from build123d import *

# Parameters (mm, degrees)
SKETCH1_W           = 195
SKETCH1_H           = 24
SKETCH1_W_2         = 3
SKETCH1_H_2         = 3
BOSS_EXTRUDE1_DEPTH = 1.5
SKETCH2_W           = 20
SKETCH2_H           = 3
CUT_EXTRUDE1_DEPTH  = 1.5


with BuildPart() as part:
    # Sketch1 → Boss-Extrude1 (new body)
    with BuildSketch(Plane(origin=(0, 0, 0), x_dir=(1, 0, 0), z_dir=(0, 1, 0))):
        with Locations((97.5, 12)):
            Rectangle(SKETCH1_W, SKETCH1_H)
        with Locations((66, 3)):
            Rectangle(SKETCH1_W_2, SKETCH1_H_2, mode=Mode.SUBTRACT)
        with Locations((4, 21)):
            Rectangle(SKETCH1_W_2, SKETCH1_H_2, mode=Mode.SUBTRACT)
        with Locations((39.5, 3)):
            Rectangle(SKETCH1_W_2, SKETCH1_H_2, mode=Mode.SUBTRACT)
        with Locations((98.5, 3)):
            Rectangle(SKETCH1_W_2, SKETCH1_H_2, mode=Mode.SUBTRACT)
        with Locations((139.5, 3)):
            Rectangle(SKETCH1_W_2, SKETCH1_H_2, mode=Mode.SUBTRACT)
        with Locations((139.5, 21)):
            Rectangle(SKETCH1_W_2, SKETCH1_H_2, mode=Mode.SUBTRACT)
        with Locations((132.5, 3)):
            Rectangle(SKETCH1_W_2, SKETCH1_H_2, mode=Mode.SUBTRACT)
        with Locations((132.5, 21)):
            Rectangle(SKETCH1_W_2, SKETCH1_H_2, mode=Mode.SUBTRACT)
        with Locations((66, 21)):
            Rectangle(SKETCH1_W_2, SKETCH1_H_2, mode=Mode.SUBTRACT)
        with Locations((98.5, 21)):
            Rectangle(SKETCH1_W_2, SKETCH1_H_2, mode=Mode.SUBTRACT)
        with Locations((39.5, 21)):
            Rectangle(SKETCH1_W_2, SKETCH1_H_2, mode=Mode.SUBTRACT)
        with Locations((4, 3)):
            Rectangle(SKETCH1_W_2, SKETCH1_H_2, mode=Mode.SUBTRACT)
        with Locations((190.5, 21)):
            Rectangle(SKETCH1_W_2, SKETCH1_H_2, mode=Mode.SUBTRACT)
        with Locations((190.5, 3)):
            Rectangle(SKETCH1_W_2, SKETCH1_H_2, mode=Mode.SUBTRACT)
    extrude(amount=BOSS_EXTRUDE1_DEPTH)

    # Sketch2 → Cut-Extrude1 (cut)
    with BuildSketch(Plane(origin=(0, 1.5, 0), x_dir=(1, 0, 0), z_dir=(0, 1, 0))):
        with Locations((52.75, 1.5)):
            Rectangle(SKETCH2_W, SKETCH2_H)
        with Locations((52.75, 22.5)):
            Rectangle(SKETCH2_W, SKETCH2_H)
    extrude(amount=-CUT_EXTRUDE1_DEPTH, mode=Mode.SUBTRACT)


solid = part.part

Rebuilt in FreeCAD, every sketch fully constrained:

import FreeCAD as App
import Part
import Sketcher

doc = App.newDocument("Part")
params = doc.addObject("Spreadsheet::Sheet", "Params")
for row, (alias, value) in enumerate([
    ("sketch1_width", "195 mm"),
    ("sketch1_width2", "3 mm"),
    ("sketch1_height", "24 mm"),
    ("pad1_length", "1.5 mm"),
    ("sketch2_width", "20 mm"),
    ("sketch2_height", "3 mm"),
    ("pocket1_length", "1.5 mm"),
], start=1):
    params.set(f"A{row}", alias)
    params.set(f"B{row}", "=" + value)
    params.setAlias(f"B{row}", alias)

body = doc.addObject("PartDesign::Body", "Body")

# Sketch on XZ plane
sketch1 = body.newObject("Sketcher::SketchObject", "Sketch")
sketch1.AttachmentSupport = (doc.getObject("XZ_Plane"), [""])
sketch1.MapMode = "FlatFace"
sketch1.addGeometry(Part.LineSegment(App.Vector(0, -24, 0), App.Vector(0, 0, 0)), False)
sketch1.addGeometry(Part.LineSegment(App.Vector(0, 0, 0), App.Vector(195, 0, 0)), False)
sketch1.addGeometry(Part.LineSegment(App.Vector(195, 0, 0), App.Vector(195, -24, 0)), False)
sketch1.addGeometry(Part.LineSegment(App.Vector(195, -24, 0), App.Vector(0, -24, 0)), False)
sketch1.addGeometry(Part.LineSegment(App.Vector(5.5, -1.5, 0), App.Vector(2.5, -1.5, 0)), False)
sketch1.addGeometry(Part.LineSegment(App.Vector(2.5, -1.5, 0), App.Vector(2.5, -4.5, 0)), False)
sketch1.addGeometry(Part.LineSegment(App.Vector(2.5, -4.5, 0), App.Vector(5.5, -4.5, 0)), False)
sketch1.addGeometry(Part.LineSegment(App.Vector(5.5, -4.5, 0), App.Vector(5.5, -1.5, 0)), False)
sketch1.addGeometry(Part.LineSegment(App.Vector(41, -1.5, 0), App.Vector(38, -1.5, 0)), False)
sketch1.addGeometry(Part.LineSegment(App.Vector(38, -1.5, 0), App.Vector(38, -4.5, 0)), False)
sketch1.addGeometry(Part.LineSegment(App.Vector(38, -4.5, 0), App.Vector(41, -4.5, 0)), False)
sketch1.addGeometry(Part.LineSegment(App.Vector(41, -4.5, 0), App.Vector(41, -1.5, 0)), False)
sketch1.addGeometry(Part.LineSegment(App.Vector(67.5, -1.5, 0), App.Vector(64.5, -1.5, 0)), False)
sketch1.addGeometry(Part.LineSegment(App.Vector(64.5, -1.5, 0), App.Vector(64.5, -4.5, 0)), False)
sketch1.addGeometry(Part.LineSegment(App.Vector(64.5, -4.5, 0), App.Vector(67.5, -4.5, 0)), False)
sketch1.addGeometry(Part.LineSegment(App.Vector(67.5, -4.5, 0), App.Vector(67.5, -1.5, 0)), False)
sketch1.addGeometry(Part.LineSegment(App.Vector(100, -1.5, 0), App.Vector(97, -1.5, 0)), False)
sketch1.addGeometry(Part.LineSegment(App.Vector(97, -1.5, 0), App.Vector(97, -4.5, 0)), False)
sketch1.addGeometry(Part.LineSegment(App.Vector(97, -4.5, 0), App.Vector(100, -4.5, 0)), False)
sketch1.addGeometry(Part.LineSegment(App.Vector(100, -4.5, 0), App.Vector(100, -1.5, 0)), False)
sketch1.addGeometry(Part.LineSegment(App.Vector(134, -1.5, 0), App.Vector(131, -1.5, 0)), False)
sketch1.addGeometry(Part.LineSegment(App.Vector(131, -1.5, 0), App.Vector(131, -4.5, 0)), False)
sketch1.addGeometry(Part.LineSegment(App.Vector(131, -4.5, 0), App.Vector(134, -4.5, 0)), False)
sketch1.addGeometry(Part.LineSegment(App.Vector(134, -4.5, 0), App.Vector(134, -1.5, 0)), False)
sketch1.addGeometry(Part.LineSegment(App.Vector(141, -1.5, 0), App.Vector(138, -1.5, 0)), False)
sketch1.addGeometry(Part.LineSegment(App.Vector(138, -1.5, 0), App.Vector(138, -4.5, 0)), False)
sketch1.addGeometry(Part.LineSegment(App.Vector(138, -4.5, 0), App.Vector(141, -4.5, 0)), False)
sketch1.addGeometry(Part.LineSegment(App.Vector(141, -4.5, 0), App.Vector(141, -1.5, 0)), False)
sketch1.addGeometry(Part.LineSegment(App.Vector(192, -1.5, 0), App.Vector(189, -1.5, 0)), False)
sketch1.addGeometry(Part.LineSegment(App.Vector(189, -1.5, 0), App.Vector(189, -4.5, 0)), False)
sketch1.addGeometry(Part.LineSegment(App.Vector(189, -4.5, 0), App.Vector(192, -4.5, 0)), False)
sketch1.addGeometry(Part.LineSegment(App.Vector(192, -4.5, 0), App.Vector(192, -1.5, 0)), False)
sketch1.addGeometry(Part.LineSegment(App.Vector(5.5, -19.5, 0), App.Vector(2.5, -19.5, 0)), False)
sketch1.addGeometry(Part.LineSegment(App.Vector(2.5, -19.5, 0), App.Vector(2.5, -22.5, 0)), False)
sketch1.addGeometry(Part.LineSegment(App.Vector(2.5, -22.5, 0), App.Vector(5.5, -22.5, 0)), False)
sketch1.addGeometry(Part.LineSegment(App.Vector(5.5, -22.5, 0), App.Vector(5.5, -19.5, 0)), False)
sketch1.addGeometry(Part.LineSegment(App.Vector(41, -19.5, 0), App.Vector(38, -19.5, 0)), False)
sketch1.addGeometry(Part.LineSegment(App.Vector(38, -19.5, 0), App.Vector(38, -22.5, 0)), False)
sketch1.addGeometry(Part.LineSegment(App.Vector(38, -22.5, 0), App.Vector(41, -22.5, 0)), False)
sketch1.addGeometry(Part.LineSegment(App.Vector(41, -22.5, 0), App.Vector(41, -19.5, 0)), False)
sketch1.addGeometry(Part.LineSegment(App.Vector(67.5, -19.5, 0), App.Vector(64.5, -19.5, 0)), False)
sketch1.addGeometry(Part.LineSegment(App.Vector(64.5, -19.5, 0), App.Vector(64.5, -22.5, 0)), False)
sketch1.addGeometry(Part.LineSegment(App.Vector(64.5, -22.5, 0), App.Vector(67.5, -22.5, 0)), False)
sketch1.addGeometry(Part.LineSegment(App.Vector(67.5, -22.5, 0), App.Vector(67.5, -19.5, 0)), False)
sketch1.addGeometry(Part.LineSegment(App.Vector(100, -19.5, 0), App.Vector(97, -19.5, 0)), False)
sketch1.addGeometry(Part.LineSegment(App.Vector(97, -19.5, 0), App.Vector(97, -22.5, 0)), False)
sketch1.addGeometry(Part.LineSegment(App.Vector(97, -22.5, 0), App.Vector(100, -22.5, 0)), False)
sketch1.addGeometry(Part.LineSegment(App.Vector(100, -22.5, 0), App.Vector(100, -19.5, 0)), False)
sketch1.addGeometry(Part.LineSegment(App.Vector(134, -19.5, 0), App.Vector(131, -19.5, 0)), False)
sketch1.addGeometry(Part.LineSegment(App.Vector(131, -19.5, 0), App.Vector(131, -22.5, 0)), False)
sketch1.addGeometry(Part.LineSegment(App.Vector(131, -22.5, 0), App.Vector(134, -22.5, 0)), False)
sketch1.addGeometry(Part.LineSegment(App.Vector(134, -22.5, 0), App.Vector(134, -19.5, 0)), False)
sketch1.addGeometry(Part.LineSegment(App.Vector(141, -19.5, 0), App.Vector(138, -19.5, 0)), False)
sketch1.addGeometry(Part.LineSegment(App.Vector(138, -19.5, 0), App.Vector(138, -22.5, 0)), False)
sketch1.addGeometry(Part.LineSegment(App.Vector(138, -22.5, 0), App.Vector(141, -22.5, 0)), False)
sketch1.addGeometry(Part.LineSegment(App.Vector(141, -22.5, 0), App.Vector(141, -19.5, 0)), False)
sketch1.addGeometry(Part.LineSegment(App.Vector(192, -19.5, 0), App.Vector(189, -19.5, 0)), False)
sketch1.addGeometry(Part.LineSegment(App.Vector(189, -19.5, 0), App.Vector(189, -22.5, 0)), False)
sketch1.addGeometry(Part.LineSegment(App.Vector(189, -22.5, 0), App.Vector(192, -22.5, 0)), False)
sketch1.addGeometry(Part.LineSegment(App.Vector(192, -22.5, 0), App.Vector(192, -19.5, 0)), False)
sketch1.addConstraint(Sketcher.Constraint("Coincident", 0, 2, 1, 1))
sketch1.addConstraint(Sketcher.Constraint("Coincident", 1, 2, 2, 1))
sketch1.addConstraint(Sketcher.Constraint("Coincident", 2, 2, 3, 1))
sketch1.addConstraint(Sketcher.Constraint("Coincident", 3, 2, 0, 1))
sketch1.addConstraint(Sketcher.Constraint("Coincident", 4, 2, 5, 1))
sketch1.addConstraint(Sketcher.Constraint("Coincident", 5, 2, 6, 1))
sketch1.addConstraint(Sketcher.Constraint("Coincident", 6, 2, 7, 1))
sketch1.addConstraint(Sketcher.Constraint("Coincident", 7, 2, 4, 1))
sketch1.addConstraint(Sketcher.Constraint("Coincident", 8, 2, 9, 1))
sketch1.addConstraint(Sketcher.Constraint("Coincident", 9, 2, 10, 1))
sketch1.addConstraint(Sketcher.Constraint("Coincident", 10, 2, 11, 1))
sketch1.addConstraint(Sketcher.Constraint("Coincident", 11, 2, 8, 1))
sketch1.addConstraint(Sketcher.Constraint("Coincident", 12, 2, 13, 1))
sketch1.addConstraint(Sketcher.Constraint("Coincident", 13, 2, 14, 1))
sketch1.addConstraint(Sketcher.Constraint("Coincident", 14, 2, 15, 1))
sketch1.addConstraint(Sketcher.Constraint("Coincident", 15, 2, 12, 1))
sketch1.addConstraint(Sketcher.Constraint("Coincident", 16, 2, 17, 1))
sketch1.addConstraint(Sketcher.Constraint("Coincident", 17, 2, 18, 1))
sketch1.addConstraint(Sketcher.Constraint("Coincident", 18, 2, 19, 1))
sketch1.addConstraint(Sketcher.Constraint("Coincident", 19, 2, 16, 1))
sketch1.addConstraint(Sketcher.Constraint("Coincident", 20, 2, 21, 1))
sketch1.addConstraint(Sketcher.Constraint("Coincident", 21, 2, 22, 1))
sketch1.addConstraint(Sketcher.Constraint("Coincident", 22, 2, 23, 1))
sketch1.addConstraint(Sketcher.Constraint("Coincident", 23, 2, 20, 1))
sketch1.addConstraint(Sketcher.Constraint("Coincident", 24, 2, 25, 1))
sketch1.addConstraint(Sketcher.Constraint("Coincident", 25, 2, 26, 1))
sketch1.addConstraint(Sketcher.Constraint("Coincident", 26, 2, 27, 1))
sketch1.addConstraint(Sketcher.Constraint("Coincident", 27, 2, 24, 1))
sketch1.addConstraint(Sketcher.Constraint("Coincident", 28, 2, 29, 1))
sketch1.addConstraint(Sketcher.Constraint("Coincident", 29, 2, 30, 1))
sketch1.addConstraint(Sketcher.Constraint("Coincident", 30, 2, 31, 1))
sketch1.addConstraint(Sketcher.Constraint("Coincident", 31, 2, 28, 1))
sketch1.addConstraint(Sketcher.Constraint("Coincident", 32, 2, 33, 1))
sketch1.addConstraint(Sketcher.Constraint("Coincident", 33, 2, 34, 1))
sketch1.addConstraint(Sketcher.Constraint("Coincident", 34, 2, 35, 1))
sketch1.addConstraint(Sketcher.Constraint("Coincident", 35, 2, 32, 1))
sketch1.addConstraint(Sketcher.Constraint("Coincident", 36, 2, 37, 1))
sketch1.addConstraint(Sketcher.Constraint("Coincident", 37, 2, 38, 1))
sketch1.addConstraint(Sketcher.Constraint("Coincident", 38, 2, 39, 1))
sketch1.addConstraint(Sketcher.Constraint("Coincident", 39, 2, 36, 1))
sketch1.addConstraint(Sketcher.Constraint("Coincident", 40, 2, 41, 1))
sketch1.addConstraint(Sketcher.Constraint("Coincident", 41, 2, 42, 1))
sketch1.addConstraint(Sketcher.Constraint("Coincident", 42, 2, 43, 1))
sketch1.addConstraint(Sketcher.Constraint("Coincident", 43, 2, 40, 1))
sketch1.addConstraint(Sketcher.Constraint("Coincident", 44, 2, 45, 1))
sketch1.addConstraint(Sketcher.Constraint("Coincident", 45, 2, 46, 1))
sketch1.addConstraint(Sketcher.Constraint("Coincident", 46, 2, 47, 1))
sketch1.addConstraint(Sketcher.Constraint("Coincident", 47, 2, 44, 1))
sketch1.addConstraint(Sketcher.Constraint("Coincident", 48, 2, 49, 1))
sketch1.addConstraint(Sketcher.Constraint("Coincident", 49, 2, 50, 1))
sketch1.addConstraint(Sketcher.Constraint("Coincident", 50, 2, 51, 1))
sketch1.addConstraint(Sketcher.Constraint("Coincident", 51, 2, 48, 1))
sketch1.addConstraint(Sketcher.Constraint("Coincident", 52, 2, 53, 1))
sketch1.addConstraint(Sketcher.Constraint("Coincident", 53, 2, 54, 1))
sketch1.addConstraint(Sketcher.Constraint("Coincident", 54, 2, 55, 1))
sketch1.addConstraint(Sketcher.Constraint("Coincident", 55, 2, 52, 1))
sketch1.addConstraint(Sketcher.Constraint("Coincident", 56, 2, 57, 1))
sketch1.addConstraint(Sketcher.Constraint("Coincident", 57, 2, 58, 1))
sketch1.addConstraint(Sketcher.Constraint("Coincident", 58, 2, 59, 1))
sketch1.addConstraint(Sketcher.Constraint("Coincident", 59, 2, 56, 1))
sketch1.addConstraint(Sketcher.Constraint("Vertical", 0))
sketch1.addConstraint(Sketcher.Constraint("Horizontal", 1))
sketch1.addConstraint(Sketcher.Constraint("Vertical", 2))
sketch1.addConstraint(Sketcher.Constraint("Horizontal", 3))
sketch1.addConstraint(Sketcher.Constraint("Horizontal", 4))
sketch1.addConstraint(Sketcher.Constraint("Vertical", 5))
sketch1.addConstraint(Sketcher.Constraint("Horizontal", 6))
sketch1.addConstraint(Sketcher.Constraint("Vertical", 7))
sketch1.addConstraint(Sketcher.Constraint("Horizontal", 8))
sketch1.addConstraint(Sketcher.Constraint("Vertical", 9))
sketch1.addConstraint(Sketcher.Constraint("Horizontal", 10))
sketch1.addConstraint(Sketcher.Constraint("Vertical", 11))
sketch1.addConstraint(Sketcher.Constraint("Horizontal", 12))
sketch1.addConstraint(Sketcher.Constraint("Vertical", 13))
sketch1.addConstraint(Sketcher.Constraint("Horizontal", 14))
sketch1.addConstraint(Sketcher.Constraint("Vertical", 15))
sketch1.addConstraint(Sketcher.Constraint("Horizontal", 16))
sketch1.addConstraint(Sketcher.Constraint("Vertical", 17))
sketch1.addConstraint(Sketcher.Constraint("Horizontal", 18))
sketch1.addConstraint(Sketcher.Constraint("Vertical", 19))
sketch1.addConstraint(Sketcher.Constraint("Horizontal", 20))
sketch1.addConstraint(Sketcher.Constraint("Vertical", 21))
sketch1.addConstraint(Sketcher.Constraint("Horizontal", 22))
sketch1.addConstraint(Sketcher.Constraint("Vertical", 23))
sketch1.addConstraint(Sketcher.Constraint("Horizontal", 24))
sketch1.addConstraint(Sketcher.Constraint("Vertical", 25))
sketch1.addConstraint(Sketcher.Constraint("Horizontal", 26))
sketch1.addConstraint(Sketcher.Constraint("Vertical", 27))
sketch1.addConstraint(Sketcher.Constraint("Horizontal", 28))
sketch1.addConstraint(Sketcher.Constraint("Vertical", 29))
sketch1.addConstraint(Sketcher.Constraint("Horizontal", 30))
sketch1.addConstraint(Sketcher.Constraint("Vertical", 31))
sketch1.addConstraint(Sketcher.Constraint("Horizontal", 32))
sketch1.addConstraint(Sketcher.Constraint("Vertical", 33))
sketch1.addConstraint(Sketcher.Constraint("Horizontal", 34))
sketch1.addConstraint(Sketcher.Constraint("Vertical", 35))
sketch1.addConstraint(Sketcher.Constraint("Horizontal", 36))
sketch1.addConstraint(Sketcher.Constraint("Vertical", 37))
sketch1.addConstraint(Sketcher.Constraint("Horizontal", 38))
sketch1.addConstraint(Sketcher.Constraint("Vertical", 39))
sketch1.addConstraint(Sketcher.Constraint("Horizontal", 40))
sketch1.addConstraint(Sketcher.Constraint("Vertical", 41))
sketch1.addConstraint(Sketcher.Constraint("Horizontal", 42))
sketch1.addConstraint(Sketcher.Constraint("Vertical", 43))
sketch1.addConstraint(Sketcher.Constraint("Horizontal", 44))
sketch1.addConstraint(Sketcher.Constraint("Vertical", 45))
sketch1.addConstraint(Sketcher.Constraint("Horizontal", 46))
sketch1.addConstraint(Sketcher.Constraint("Vertical", 47))
sketch1.addConstraint(Sketcher.Constraint("Horizontal", 48))
sketch1.addConstraint(Sketcher.Constraint("Vertical", 49))
sketch1.addConstraint(Sketcher.Constraint("Horizontal", 50))
sketch1.addConstraint(Sketcher.Constraint("Vertical", 51))
sketch1.addConstraint(Sketcher.Constraint("Horizontal", 52))
sketch1.addConstraint(Sketcher.Constraint("Vertical", 53))
sketch1.addConstraint(Sketcher.Constraint("Horizontal", 54))
sketch1.addConstraint(Sketcher.Constraint("Vertical", 55))
sketch1.addConstraint(Sketcher.Constraint("Horizontal", 56))
sketch1.addConstraint(Sketcher.Constraint("Vertical", 57))
sketch1.addConstraint(Sketcher.Constraint("Horizontal", 58))
sketch1.addConstraint(Sketcher.Constraint("Vertical", 59))
sketch1.addConstraint(Sketcher.Constraint("Coincident", 0, 2, -1, 1))
sketch1.addConstraint(Sketcher.Constraint("Horizontal", 7, 2, 8, 2))
sketch1.addConstraint(Sketcher.Constraint("Horizontal", 6, 2, 9, 2))
sketch1.addConstraint(Sketcher.Constraint("Horizontal", 11, 2, 12, 2))
sketch1.addConstraint(Sketcher.Constraint("Horizontal", 10, 2, 13, 2))
sketch1.addConstraint(Sketcher.Constraint("Horizontal", 15, 2, 16, 2))
sketch1.addConstraint(Sketcher.Constraint("Horizontal", 14, 2, 17, 2))
sketch1.addConstraint(Sketcher.Constraint("Horizontal", 19, 2, 20, 2))
sketch1.addConstraint(Sketcher.Constraint("Horizontal", 18, 2, 21, 2))
sketch1.addConstraint(Sketcher.Constraint("Horizontal", 23, 2, 24, 2))
sketch1.addConstraint(Sketcher.Constraint("Horizontal", 22, 2, 25, 2))
sketch1.addConstraint(Sketcher.Constraint("Horizontal", 27, 2, 28, 2))
sketch1.addConstraint(Sketcher.Constraint("Horizontal", 26, 2, 29, 2))
sketch1.addConstraint(Sketcher.Constraint("Horizontal", 35, 2, 36, 2))
sketch1.addConstraint(Sketcher.Constraint("Horizontal", 34, 2, 37, 2))
sketch1.addConstraint(Sketcher.Constraint("Horizontal", 39, 2, 40, 2))
sketch1.addConstraint(Sketcher.Constraint("Horizontal", 38, 2, 41, 2))
sketch1.addConstraint(Sketcher.Constraint("Horizontal", 43, 2, 44, 2))
sketch1.addConstraint(Sketcher.Constraint("Horizontal", 42, 2, 45, 2))
sketch1.addConstraint(Sketcher.Constraint("Horizontal", 47, 2, 48, 2))
sketch1.addConstraint(Sketcher.Constraint("Horizontal", 46, 2, 49, 2))
sketch1.addConstraint(Sketcher.Constraint("Horizontal", 51, 2, 52, 2))
sketch1.addConstraint(Sketcher.Constraint("Horizontal", 50, 2, 53, 2))
sketch1.addConstraint(Sketcher.Constraint("Horizontal", 55, 2, 56, 2))
sketch1.addConstraint(Sketcher.Constraint("Horizontal", 54, 2, 57, 2))
sketch1.addConstraint(Sketcher.Constraint("Vertical", 5, 2, 32, 2))
sketch1.addConstraint(Sketcher.Constraint("Vertical", 7, 2, 34, 2))
sketch1.addConstraint(Sketcher.Constraint("Vertical", 9, 2, 36, 2))
sketch1.addConstraint(Sketcher.Constraint("Vertical", 11, 2, 38, 2))
sketch1.addConstraint(Sketcher.Constraint("Vertical", 13, 2, 40, 2))
sketch1.addConstraint(Sketcher.Constraint("Vertical", 15, 2, 42, 2))
sketch1.addConstraint(Sketcher.Constraint("Vertical", 17, 2, 44, 2))
sketch1.addConstraint(Sketcher.Constraint("Vertical", 19, 2, 46, 2))
sketch1.addConstraint(Sketcher.Constraint("Vertical", 21, 2, 48, 2))
sketch1.addConstraint(Sketcher.Constraint("Vertical", 23, 2, 50, 2))
sketch1.addConstraint(Sketcher.Constraint("Vertical", 25, 2, 52, 2))
sketch1.addConstraint(Sketcher.Constraint("Vertical", 27, 2, 54, 2))
sketch1.addConstraint(Sketcher.Constraint("Vertical", 29, 2, 56, 2))
sketch1.addConstraint(Sketcher.Constraint("Vertical", 31, 2, 58, 2))
sketch1.addConstraint(Sketcher.Constraint("Equal", 6, 8))
sketch1.addConstraint(Sketcher.Constraint("Equal", 10, 12))
sketch1.addConstraint(Sketcher.Constraint("Equal", 14, 16))
sketch1.addConstraint(Sketcher.Constraint("Equal", 18, 20))
sketch1.addConstraint(Sketcher.Constraint("Equal", 22, 24))
sketch1.addConstraint(Sketcher.Constraint("Equal", 26, 28))
sketch1.addConstraint(Sketcher.Constraint("Equal", 58, 5))
sketch1.addConstraint(Sketcher.Constraint("Equal", 31, 33))
sketch1.addConstraint(Sketcher.Constraint("DistanceX", 1, 1, 1, 2, 195.0))
sketch1.addConstraint(Sketcher.Constraint("DistanceX", 4, 2, 4, 1, 3.0))
sketch1.addConstraint(Sketcher.Constraint("DistanceY", 0, 1, 0, 2, 24.0))
sketch1.addConstraint(Sketcher.Constraint("DistanceX", -1, 1, 8, 2, 38.0))
sketch1.addConstraint(Sketcher.Constraint("DistanceX", -1, 1, 16, 2, 97.0))
sketch1.addConstraint(Sketcher.Constraint("DistanceX", -1, 1, 20, 2, 131.0))
sketch1.addConstraint(Sketcher.Constraint("DistanceX", -1, 1, 24, 2, 138.0))
sketch1.addConstraint(Sketcher.Constraint("DistanceX", -1, 1, 28, 2, 189.0))
sketch1.addConstraint(Sketcher.Constraint("DistanceX", 7, 2, 12, 2, 59.0))
sketch1.addConstraint(Sketcher.Constraint("DistanceY", 32, 2, 5, 2, 15.0))
sketch1.addConstraint(Sketcher.Constraint("DistanceX", -1, 1, 4, 2, 2.5))
sketch1.addConstraint(Sketcher.Constraint("DistanceY", 4, 2, -1, 1, 1.5))
sketch1.setExpression("Constraints[167]", "Params.sketch1_width")
sketch1.setExpression("Constraints[168]", "Params.sketch1_width2")
sketch1.setExpression("Constraints[169]", "Params.sketch1_height")
pad1 = body.newObject("PartDesign::Pad", "Pad")
pad1.Profile = sketch1
pad1.setExpression("Length", "Params.pad1_length")
pad1.Reversed = True

# Sketch on XZ plane
sketch2 = body.newObject("Sketcher::SketchObject", "Sketch001")
sketch2.AttachmentSupport = (doc.getObject("XZ_Plane"), [""])
sketch2.MapMode = "FlatFace"
sketch2.AttachmentOffset = App.Placement(App.Vector(0, 0, -1.5), App.Rotation())
sketch2.addGeometry(Part.LineSegment(App.Vector(42.8, -3, 0), App.Vector(42.8, 0, 0)), False)
sketch2.addGeometry(Part.LineSegment(App.Vector(42.8, 0, 0), App.Vector(62.8, 0, 0)), False)
sketch2.addGeometry(Part.LineSegment(App.Vector(62.8, 0, 0), App.Vector(62.8, -3, 0)), False)
sketch2.addGeometry(Part.LineSegment(App.Vector(62.8, -3, 0), App.Vector(42.8, -3, 0)), False)
sketch2.addGeometry(Part.LineSegment(App.Vector(42.8, -24, 0), App.Vector(42.8, -21, 0)), False)
sketch2.addGeometry(Part.LineSegment(App.Vector(42.8, -21, 0), App.Vector(62.8, -21, 0)), False)
sketch2.addGeometry(Part.LineSegment(App.Vector(62.8, -21, 0), App.Vector(62.8, -24, 0)), False)
sketch2.addGeometry(Part.LineSegment(App.Vector(62.8, -24, 0), App.Vector(42.8, -24, 0)), False)
sketch2.addConstraint(Sketcher.Constraint("Coincident", 0, 2, 1, 1))
sketch2.addConstraint(Sketcher.Constraint("Coincident", 1, 2, 2, 1))
sketch2.addConstraint(Sketcher.Constraint("Coincident", 2, 2, 3, 1))
sketch2.addConstraint(Sketcher.Constraint("Coincident", 3, 2, 0, 1))
sketch2.addConstraint(Sketcher.Constraint("Coincident", 4, 2, 5, 1))
sketch2.addConstraint(Sketcher.Constraint("Coincident", 5, 2, 6, 1))
sketch2.addConstraint(Sketcher.Constraint("Coincident", 6, 2, 7, 1))
sketch2.addConstraint(Sketcher.Constraint("Coincident", 7, 2, 4, 1))
sketch2.addConstraint(Sketcher.Constraint("Vertical", 0))
sketch2.addConstraint(Sketcher.Constraint("Horizontal", 1))
sketch2.addConstraint(Sketcher.Constraint("Vertical", 2))
sketch2.addConstraint(Sketcher.Constraint("Horizontal", 3))
sketch2.addConstraint(Sketcher.Constraint("Vertical", 4))
sketch2.addConstraint(Sketcher.Constraint("Horizontal", 5))
sketch2.addConstraint(Sketcher.Constraint("Vertical", 6))
sketch2.addConstraint(Sketcher.Constraint("Horizontal", 7))
sketch2.addConstraint(Sketcher.Constraint("PointOnObject", 0, 2, -1))
sketch2.addConstraint(Sketcher.Constraint("Vertical", 3, 2, 4, 2))
sketch2.addConstraint(Sketcher.Constraint("Vertical", 2, 2, 5, 2))
sketch2.addConstraint(Sketcher.Constraint("Equal", 2, 4))
sketch2.addConstraint(Sketcher.Constraint("DistanceX", 1, 1, 1, 2, 20.0))
sketch2.addConstraint(Sketcher.Constraint("DistanceY", 0, 1, 0, 2, 3.0))
sketch2.addConstraint(Sketcher.Constraint("DistanceY", 4, 2, -1, 1, 21.0))
sketch2.addConstraint(Sketcher.Constraint("DistanceX", -1, 1, 0, 2, 42.75))
sketch2.setExpression("Constraints[20]", "Params.sketch2_width")
sketch2.setExpression("Constraints[21]", "Params.sketch2_height")
pocket1 = body.newObject("PartDesign::Pocket", "Pocket")
pocket1.Profile = sketch2
pocket1.setExpression("Length", "Params.pocket1_length")
pocket1.Reversed = True

doc.recompute()
